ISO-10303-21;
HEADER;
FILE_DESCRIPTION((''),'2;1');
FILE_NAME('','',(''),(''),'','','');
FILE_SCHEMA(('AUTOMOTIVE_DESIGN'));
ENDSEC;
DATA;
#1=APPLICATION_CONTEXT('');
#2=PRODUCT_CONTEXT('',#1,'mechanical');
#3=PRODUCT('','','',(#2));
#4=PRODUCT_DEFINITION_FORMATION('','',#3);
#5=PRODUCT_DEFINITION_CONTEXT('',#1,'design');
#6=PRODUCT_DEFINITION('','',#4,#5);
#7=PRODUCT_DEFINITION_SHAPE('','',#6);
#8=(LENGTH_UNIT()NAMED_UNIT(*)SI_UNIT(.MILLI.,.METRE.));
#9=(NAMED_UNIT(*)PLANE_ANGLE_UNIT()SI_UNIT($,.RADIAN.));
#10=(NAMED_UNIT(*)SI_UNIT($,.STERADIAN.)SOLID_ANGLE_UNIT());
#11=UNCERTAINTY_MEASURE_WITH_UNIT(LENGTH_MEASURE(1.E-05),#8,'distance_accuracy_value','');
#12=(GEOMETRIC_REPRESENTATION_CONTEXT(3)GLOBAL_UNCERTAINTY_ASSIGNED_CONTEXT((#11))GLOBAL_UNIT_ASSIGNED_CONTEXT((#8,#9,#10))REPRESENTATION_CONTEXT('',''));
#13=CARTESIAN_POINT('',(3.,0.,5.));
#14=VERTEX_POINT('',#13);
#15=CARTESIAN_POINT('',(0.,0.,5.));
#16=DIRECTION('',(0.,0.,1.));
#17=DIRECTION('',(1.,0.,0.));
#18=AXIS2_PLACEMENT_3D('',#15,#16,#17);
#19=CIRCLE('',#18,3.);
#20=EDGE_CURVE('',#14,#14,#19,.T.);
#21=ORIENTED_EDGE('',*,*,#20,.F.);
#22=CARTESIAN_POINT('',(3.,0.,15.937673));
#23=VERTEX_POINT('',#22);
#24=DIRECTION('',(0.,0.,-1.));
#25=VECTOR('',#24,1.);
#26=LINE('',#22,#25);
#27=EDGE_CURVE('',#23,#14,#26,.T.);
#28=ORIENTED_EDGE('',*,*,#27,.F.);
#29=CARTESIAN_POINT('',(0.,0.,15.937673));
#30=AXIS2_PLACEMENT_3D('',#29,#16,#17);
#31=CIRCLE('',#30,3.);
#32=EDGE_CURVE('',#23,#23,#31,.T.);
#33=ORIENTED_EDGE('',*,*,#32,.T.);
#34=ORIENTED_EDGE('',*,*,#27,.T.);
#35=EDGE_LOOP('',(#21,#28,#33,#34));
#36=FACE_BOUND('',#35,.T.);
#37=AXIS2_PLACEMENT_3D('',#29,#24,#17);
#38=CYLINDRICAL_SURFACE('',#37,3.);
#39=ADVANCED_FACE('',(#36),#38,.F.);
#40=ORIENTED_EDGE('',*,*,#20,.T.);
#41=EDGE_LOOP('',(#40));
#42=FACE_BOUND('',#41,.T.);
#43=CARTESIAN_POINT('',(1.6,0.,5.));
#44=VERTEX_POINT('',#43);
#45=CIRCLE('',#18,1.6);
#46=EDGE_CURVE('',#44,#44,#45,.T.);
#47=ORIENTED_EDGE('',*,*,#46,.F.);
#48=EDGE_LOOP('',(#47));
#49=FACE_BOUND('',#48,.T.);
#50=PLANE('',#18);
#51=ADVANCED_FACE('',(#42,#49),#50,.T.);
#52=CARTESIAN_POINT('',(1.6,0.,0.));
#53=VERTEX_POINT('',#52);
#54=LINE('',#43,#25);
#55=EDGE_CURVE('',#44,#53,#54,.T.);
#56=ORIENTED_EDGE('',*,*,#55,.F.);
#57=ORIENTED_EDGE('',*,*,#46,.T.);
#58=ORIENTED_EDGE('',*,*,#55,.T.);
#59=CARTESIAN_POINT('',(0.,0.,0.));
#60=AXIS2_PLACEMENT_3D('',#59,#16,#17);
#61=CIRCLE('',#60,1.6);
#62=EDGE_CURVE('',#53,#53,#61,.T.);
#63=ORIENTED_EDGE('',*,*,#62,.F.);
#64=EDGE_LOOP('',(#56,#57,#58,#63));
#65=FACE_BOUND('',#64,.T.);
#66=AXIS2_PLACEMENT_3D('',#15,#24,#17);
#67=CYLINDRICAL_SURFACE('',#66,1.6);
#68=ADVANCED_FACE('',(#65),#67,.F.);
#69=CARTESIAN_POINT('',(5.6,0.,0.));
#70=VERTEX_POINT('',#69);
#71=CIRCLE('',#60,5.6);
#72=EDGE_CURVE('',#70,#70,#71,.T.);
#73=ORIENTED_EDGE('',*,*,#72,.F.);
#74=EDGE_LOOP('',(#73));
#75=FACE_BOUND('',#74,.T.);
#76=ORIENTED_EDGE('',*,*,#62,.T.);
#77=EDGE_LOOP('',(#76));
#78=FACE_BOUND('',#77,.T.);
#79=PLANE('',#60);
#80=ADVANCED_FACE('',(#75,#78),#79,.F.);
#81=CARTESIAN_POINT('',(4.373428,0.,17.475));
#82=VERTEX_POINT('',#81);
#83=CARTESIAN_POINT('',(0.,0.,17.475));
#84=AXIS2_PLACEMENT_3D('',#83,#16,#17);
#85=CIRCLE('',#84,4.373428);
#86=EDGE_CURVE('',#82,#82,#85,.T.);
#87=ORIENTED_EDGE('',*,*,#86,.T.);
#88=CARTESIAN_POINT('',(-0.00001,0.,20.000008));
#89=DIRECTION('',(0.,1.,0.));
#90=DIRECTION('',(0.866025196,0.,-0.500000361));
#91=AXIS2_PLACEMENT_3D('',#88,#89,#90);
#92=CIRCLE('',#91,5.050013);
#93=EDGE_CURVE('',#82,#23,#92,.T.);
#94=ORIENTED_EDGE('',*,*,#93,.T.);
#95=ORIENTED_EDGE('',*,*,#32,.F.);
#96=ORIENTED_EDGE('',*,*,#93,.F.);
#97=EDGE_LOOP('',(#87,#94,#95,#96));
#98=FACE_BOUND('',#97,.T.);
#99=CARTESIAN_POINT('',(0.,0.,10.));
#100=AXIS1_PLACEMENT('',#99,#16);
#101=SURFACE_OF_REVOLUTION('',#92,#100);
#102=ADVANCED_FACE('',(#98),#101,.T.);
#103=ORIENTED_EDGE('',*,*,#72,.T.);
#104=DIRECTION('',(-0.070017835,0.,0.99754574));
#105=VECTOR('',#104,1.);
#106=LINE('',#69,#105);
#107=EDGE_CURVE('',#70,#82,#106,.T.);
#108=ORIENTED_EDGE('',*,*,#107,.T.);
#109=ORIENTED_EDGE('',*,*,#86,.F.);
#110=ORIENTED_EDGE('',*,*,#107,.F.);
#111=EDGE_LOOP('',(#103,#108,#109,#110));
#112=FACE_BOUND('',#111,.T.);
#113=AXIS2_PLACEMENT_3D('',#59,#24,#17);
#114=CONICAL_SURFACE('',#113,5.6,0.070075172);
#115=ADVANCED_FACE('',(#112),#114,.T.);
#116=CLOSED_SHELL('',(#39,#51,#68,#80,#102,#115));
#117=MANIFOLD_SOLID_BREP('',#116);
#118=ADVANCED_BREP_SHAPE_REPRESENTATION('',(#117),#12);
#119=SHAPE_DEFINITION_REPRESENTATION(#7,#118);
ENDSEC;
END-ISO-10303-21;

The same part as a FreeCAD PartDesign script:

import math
import FreeCAD as App
import Part
import Sketcher
Q = App.Units.Quantity

doc = App.newDocument("Part")
body = doc.addObject("PartDesign::Body", "Body")

sketch1 = doc.addObject("Sketcher::SketchObject", "Sketch")
body.addObject(sketch1)
sketch1.AttachmentSupport = (doc.XZ_Plane, [""])
sketch1.MapMode = "FlatFace"
sketch1.addGeometry(Part.LineSegment(App.Vector(1.6, 5, 0), App.Vector(1.6, 0, 0)), False)
sketch1.addGeometry(Part.LineSegment(App.Vector(1.6, 0, 0), App.Vector(5.6, 0, 0)), False)
sketch1.addGeometry(Part.LineSegment(App.Vector(5.6, 0, 0), App.Vector(4.373428, 17.475, 0)), False)
sketch1.addGeometry(Part.ArcOfCircle(Part.Circle(App.Vector(-0.00001, 20.000008, 0), App.Vector(0, 0, 1), 5.050013), math.radians(-53.554353), math.radians(-30.000024)), False)
sketch1.addGeometry(Part.LineSegment(App.Vector(3, 15.937673, 0), App.Vector(3, 5, 0)), False)
sketch1.addGeometry(Part.LineSegment(App.Vector(3, 5, 0), App.Vector(1.6, 5, 0)), False)
sketch1.addConstraint(Sketcher.Constraint("Coincident", 0, 2, 1, 1))
sketch1.addConstraint(Sketcher.Constraint("Coincident", 1, 2, 2, 1))
sketch1.addConstraint(Sketcher.Constraint("Coincident", 2, 2, 3, 2))
sketch1.addConstraint(Sketcher.Constraint("Coincident", 3, 1, 4, 1))
sketch1.addConstraint(Sketcher.Constraint("Coincident", 4, 2, 5, 1))
sketch1.addConstraint(Sketcher.Constraint("Coincident", 5, 2, 0, 1))
sketch1.addConstraint(Sketcher.Constraint("Vertical", 0))
sketch1.addConstraint(Sketcher.Constraint("Horizontal", 1))
sketch1.addConstraint(Sketcher.Constraint("Vertical", 4))
sketch1.addConstraint(Sketcher.Constraint("Horizontal", 5))
sketch1.addConstraint(Sketcher.Constraint("PointOnObject", 0, 2, -1))
sketch1.addConstraint(Sketcher.Constraint("DistanceX", 1, 1, 1, 2, Q("4 mm")))
sketch1.addConstraint(Sketcher.Constraint("DistanceY", 0, 2, 0, 1, Q("5 mm")))
sketch1.addConstraint(Sketcher.Constraint("DistanceX", 5, 2, 5, 1, Q("1.4 mm")))
sketch1.addConstraint(Sketcher.Constraint("DistanceX", -1, 1, 3, 1, Q("3 mm")))
sketch1.addConstraint(Sketcher.Constraint("DistanceY", -1, 1, 2, 2, Q("17.475 mm")))
sketch1.addConstraint(Sketcher.Constraint("Radius", 3, Q("5.050013 mm")))
sketch1.addConstraint(Sketcher.Constraint("DistanceY", 4, 2, 4, 1, Q("10.937673 mm")))
sketch1.addConstraint(Sketcher.Constraint("DistanceY", -1, 1, 3, 3, Q("20.000008 mm")))
revolution = doc.addObject("PartDesign::Revolution", "Revolution")
body.addObject(revolution)
revolution.Profile = sketch1
revolution.ReferenceAxis = (sketch1, ["V_Axis"])
revolution.Angle = 360

doc.recompute()
